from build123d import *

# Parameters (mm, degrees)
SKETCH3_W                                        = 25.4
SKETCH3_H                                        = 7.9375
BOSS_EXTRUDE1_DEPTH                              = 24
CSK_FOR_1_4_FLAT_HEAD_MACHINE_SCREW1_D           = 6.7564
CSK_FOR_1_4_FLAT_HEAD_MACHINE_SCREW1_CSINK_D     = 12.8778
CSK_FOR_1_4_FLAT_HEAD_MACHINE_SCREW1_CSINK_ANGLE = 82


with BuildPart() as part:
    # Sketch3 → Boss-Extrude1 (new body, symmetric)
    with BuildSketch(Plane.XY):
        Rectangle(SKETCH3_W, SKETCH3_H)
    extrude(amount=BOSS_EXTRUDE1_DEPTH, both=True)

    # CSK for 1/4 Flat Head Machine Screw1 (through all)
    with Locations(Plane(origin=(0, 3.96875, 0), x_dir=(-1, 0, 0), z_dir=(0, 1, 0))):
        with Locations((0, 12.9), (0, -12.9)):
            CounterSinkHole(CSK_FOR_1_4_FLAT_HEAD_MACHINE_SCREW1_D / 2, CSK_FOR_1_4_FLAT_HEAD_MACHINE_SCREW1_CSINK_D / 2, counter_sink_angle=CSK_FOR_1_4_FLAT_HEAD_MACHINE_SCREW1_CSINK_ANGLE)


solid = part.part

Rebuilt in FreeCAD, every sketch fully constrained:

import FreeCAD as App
import Part
import Sketcher
from FreeCAD import Vector
Q = App.Units.Quantity


def add_polygon(sketch, points):
    """Adds a closed chain of lines whose ends are joined by coincident constraints."""
    first, n = sketch.GeometryCount, len(points)
    for a, b in zip(points, points[1:] + points[:1]):
        sketch.addGeometry(Part.LineSegment(App.Vector(*a, 0), App.Vector(*b, 0)), False)
    for i in range(n):
        sketch.addConstraint(Sketcher.Constraint("Coincident", first + i, 2, first + (i + 1) % n, 1))

doc = App.newDocument("Part")
body = doc.addObject("PartDesign::Body", "Body")

sketch1 = body.newObject("Sketcher::SketchObject", "Sketch")
sketch1.AttachmentSupport = (doc.getObject("XY_Plane"), [""])
sketch1.MapMode = "FlatFace"
add_polygon(sketch1, [(-12.7, 3.96875), (-12.7, -3.96875), (12.7, -3.96875), (12.7, 3.96875)])
sketch1.addConstraint([
    Sketcher.Constraint("Vertical", 0),
    Sketcher.Constraint("Horizontal", 1),
    Sketcher.Constraint("Vertical", 2),
    Sketcher.Constraint("Horizontal", 3),
    Sketcher.Constraint("Symmetric", 0, 2, 2, 2, -1, 1),
    Sketcher.Constraint("DistanceX", 1, 1, 1, 2, Q("1 in")),
    Sketcher.Constraint("DistanceY", 0, 2, 0, 1, Q("0.3125 in")),
])
pad1 = body.newObject("PartDesign::Pad", "Pad")
pad1.Profile = sketch1
pad1.Length = 48
pad1.Midplane = True

sketch2 = body.newObject("Sketcher::SketchObject", "Sketch001")
sketch2.AttachmentSupport = (doc.getObject("XZ_Plane"), [""])
sketch2.MapMode = "FlatFace"
sketch2.AttachmentOffset = App.Placement(Vector(0, 0, -0.15625 * 25.4), App.Rotation())
sketch2.addGeometry([
    Part.Circle(Vector(0, 12.9, 0), Vector(0, 0, 1), 3.3782),
    Part.Circle(Vector(0, -12.9, 0), Vector(0, 0, 1), 3.3782),
], False)
sketch2.addConstraint([
    Sketcher.Constraint("Equal", 0, 1),
    Sketcher.Constraint("Symmetric", 0, 3, 1, 3, -1, 1),
    Sketcher.Constraint("PointOnObject", 0, 3, -2),
    Sketcher.Constraint("Diameter", 0, Q("0.266 in")),
    Sketcher.Constraint("DistanceY", -1, 1, 0, 3, Q("12.9 mm")),
])
doc.recompute()
hole = body.newObject("PartDesign::Hole", "Hole")
hole.Profile = sketch2
hole.ThreadType = "None"
hole.Diameter = Q("0.266 in")
hole.DepthType = "ThroughAll"
hole.HoleCutType = "Countersink"
hole.HoleCutDiameter = Q("0.507 in")
hole.HoleCutCountersinkAngle = 82
hole.Reversed = True

doc.recompute()
